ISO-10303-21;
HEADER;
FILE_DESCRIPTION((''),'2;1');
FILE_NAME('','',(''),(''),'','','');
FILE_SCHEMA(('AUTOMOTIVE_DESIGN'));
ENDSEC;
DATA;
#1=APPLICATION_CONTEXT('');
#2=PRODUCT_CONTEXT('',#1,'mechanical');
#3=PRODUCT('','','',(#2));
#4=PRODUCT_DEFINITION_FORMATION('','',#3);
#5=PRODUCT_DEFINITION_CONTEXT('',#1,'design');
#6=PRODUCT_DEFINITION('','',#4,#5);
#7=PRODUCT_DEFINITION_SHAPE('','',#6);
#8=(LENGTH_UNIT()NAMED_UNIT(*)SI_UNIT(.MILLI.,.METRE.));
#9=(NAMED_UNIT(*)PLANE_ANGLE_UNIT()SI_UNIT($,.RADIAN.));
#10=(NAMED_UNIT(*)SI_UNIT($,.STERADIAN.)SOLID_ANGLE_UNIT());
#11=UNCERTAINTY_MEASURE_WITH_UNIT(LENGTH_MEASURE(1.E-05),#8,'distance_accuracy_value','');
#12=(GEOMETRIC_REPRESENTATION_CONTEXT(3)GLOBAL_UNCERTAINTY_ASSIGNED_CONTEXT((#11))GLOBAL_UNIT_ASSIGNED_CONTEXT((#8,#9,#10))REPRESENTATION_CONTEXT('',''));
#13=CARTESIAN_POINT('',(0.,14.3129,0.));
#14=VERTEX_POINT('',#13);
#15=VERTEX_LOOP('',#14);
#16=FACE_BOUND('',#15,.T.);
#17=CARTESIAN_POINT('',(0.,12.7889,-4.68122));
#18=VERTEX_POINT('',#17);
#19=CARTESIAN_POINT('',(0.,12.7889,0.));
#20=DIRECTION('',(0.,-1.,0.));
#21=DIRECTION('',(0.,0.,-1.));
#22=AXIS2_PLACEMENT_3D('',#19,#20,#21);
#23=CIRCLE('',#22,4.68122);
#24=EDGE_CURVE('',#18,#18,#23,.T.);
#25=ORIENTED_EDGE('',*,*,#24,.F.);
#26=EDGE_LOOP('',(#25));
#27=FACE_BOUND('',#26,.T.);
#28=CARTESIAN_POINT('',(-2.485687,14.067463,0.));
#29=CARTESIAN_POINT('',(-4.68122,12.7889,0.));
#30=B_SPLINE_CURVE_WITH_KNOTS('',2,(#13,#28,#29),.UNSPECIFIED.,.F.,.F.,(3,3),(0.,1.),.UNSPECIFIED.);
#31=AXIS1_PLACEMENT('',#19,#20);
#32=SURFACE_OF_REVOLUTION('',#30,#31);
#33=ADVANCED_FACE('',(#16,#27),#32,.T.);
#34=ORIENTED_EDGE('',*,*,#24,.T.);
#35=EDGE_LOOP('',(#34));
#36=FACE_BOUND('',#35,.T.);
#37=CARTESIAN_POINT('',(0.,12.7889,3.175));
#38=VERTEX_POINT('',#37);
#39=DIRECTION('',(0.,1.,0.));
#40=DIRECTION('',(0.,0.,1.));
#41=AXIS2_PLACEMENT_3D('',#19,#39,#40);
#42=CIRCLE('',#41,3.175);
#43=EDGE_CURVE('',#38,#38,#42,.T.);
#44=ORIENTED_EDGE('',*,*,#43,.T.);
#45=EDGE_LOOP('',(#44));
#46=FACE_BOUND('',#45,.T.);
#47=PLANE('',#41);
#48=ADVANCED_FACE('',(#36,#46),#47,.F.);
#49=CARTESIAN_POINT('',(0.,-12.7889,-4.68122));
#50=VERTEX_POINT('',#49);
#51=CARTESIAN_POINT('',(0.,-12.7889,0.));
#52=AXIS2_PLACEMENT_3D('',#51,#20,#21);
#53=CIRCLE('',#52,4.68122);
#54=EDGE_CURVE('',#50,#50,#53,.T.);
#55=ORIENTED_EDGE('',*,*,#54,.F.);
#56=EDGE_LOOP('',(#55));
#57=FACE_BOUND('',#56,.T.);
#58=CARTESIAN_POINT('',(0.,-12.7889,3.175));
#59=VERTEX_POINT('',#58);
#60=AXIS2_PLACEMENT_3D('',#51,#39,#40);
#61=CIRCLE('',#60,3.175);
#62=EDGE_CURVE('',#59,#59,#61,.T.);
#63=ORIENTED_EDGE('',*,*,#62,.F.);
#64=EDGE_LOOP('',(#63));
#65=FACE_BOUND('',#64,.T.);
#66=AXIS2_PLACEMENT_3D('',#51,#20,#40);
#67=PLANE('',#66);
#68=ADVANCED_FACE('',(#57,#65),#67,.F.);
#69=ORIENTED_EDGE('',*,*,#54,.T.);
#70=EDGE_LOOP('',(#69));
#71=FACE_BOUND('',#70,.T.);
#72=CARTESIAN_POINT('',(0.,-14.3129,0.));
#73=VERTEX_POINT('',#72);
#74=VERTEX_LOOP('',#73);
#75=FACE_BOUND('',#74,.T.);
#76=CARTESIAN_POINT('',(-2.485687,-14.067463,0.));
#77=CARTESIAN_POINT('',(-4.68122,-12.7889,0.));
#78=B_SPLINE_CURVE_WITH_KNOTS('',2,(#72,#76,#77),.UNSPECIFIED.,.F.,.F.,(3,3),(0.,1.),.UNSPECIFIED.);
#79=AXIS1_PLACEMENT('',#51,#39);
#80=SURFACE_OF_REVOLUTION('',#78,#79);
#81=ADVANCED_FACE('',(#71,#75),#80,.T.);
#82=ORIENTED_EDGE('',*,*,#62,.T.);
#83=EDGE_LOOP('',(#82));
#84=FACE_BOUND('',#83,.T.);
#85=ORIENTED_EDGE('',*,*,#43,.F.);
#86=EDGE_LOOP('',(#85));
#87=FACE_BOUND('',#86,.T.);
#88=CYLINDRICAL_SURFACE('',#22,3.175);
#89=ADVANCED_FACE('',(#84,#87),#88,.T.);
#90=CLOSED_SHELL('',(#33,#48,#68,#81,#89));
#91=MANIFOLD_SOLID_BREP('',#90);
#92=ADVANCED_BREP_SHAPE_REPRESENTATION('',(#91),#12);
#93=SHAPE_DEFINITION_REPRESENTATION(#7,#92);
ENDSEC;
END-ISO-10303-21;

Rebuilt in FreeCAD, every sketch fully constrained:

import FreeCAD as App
import Part
import Sketcher

V = App.Vector
Q = App.Units.Quantity

doc = App.newDocument("Part")
body = doc.addObject("PartDesign::Body", "Body")

# Sketch on XZ plane
sketch1 = body.newObject("Sketcher::SketchObject", "Sketch")
sketch1.AttachmentSupport = (doc.getObject("XZ_Plane"), [""])
sketch1.MapMode = "FlatFace"
sketch1.addGeometry(Part.Circle(V(0, 0, 0), V(0, 0, 1), 3.2), False)
sketch1.addConstraint([
    Sketcher.Constraint("Coincident", 0, 3, -1, 1),
    Sketcher.Constraint("Diameter", 0, Q("0.25 in")),
])
pad1 = body.newObject("PartDesign::Pad", "Pad")
pad1.Profile = sketch1
pad1.Length = Q("1.007 in")
pad1.Midplane = True

# Sketch on XY plane
sketch2 = body.newObject("Sketcher::SketchObject", "Sketch001")
sketch2.AttachmentSupport = (doc.getObject("XY_Plane"), [""])
sketch2.MapMode = "FlatFace"
sketch2.addGeometry([
    Part.LineSegment(V(-4.68122, 12.7889, 0), V(0, 12.7889, 0)),
    Part.LineSegment(V(0, 12.7889, 0), V(0, 14.3129, 0)),
    Part.BSplineCurve([V(-4.68122, 12.7889, 0), V(-2.485687, 14.067463, 0), V(0, 14.3129, 0)], [3, 3], [0, 1], False, 2, [1, 1, 1], False),
], False)
sketch2.addConstraint([
    Sketcher.Constraint("Block", 2),
    Sketcher.Constraint("Coincident", 0, 2, 1, 1),
    Sketcher.Constraint("Coincident", 1, 2, 2, 2),
    Sketcher.Constraint("Coincident", 2, 1, 0, 1),
    Sketcher.Constraint("Horizontal", 0),
    Sketcher.Constraint("Vertical", 1),
])
revolution = body.newObject("PartDesign::Revolution", "Revolution")
revolution.Profile = sketch2
revolution.ReferenceAxis = (sketch2, ["V_Axis"])
revolution.Angle = 360
doc.recompute()

mirrored = body.newObject("PartDesign::Mirrored", "Mirrored")
mirrored.Originals = [revolution]
mirrored.MirrorPlane = (doc.getObject("XZ_Plane"), [""])
body.Tip = mirrored

doc.recompute()
